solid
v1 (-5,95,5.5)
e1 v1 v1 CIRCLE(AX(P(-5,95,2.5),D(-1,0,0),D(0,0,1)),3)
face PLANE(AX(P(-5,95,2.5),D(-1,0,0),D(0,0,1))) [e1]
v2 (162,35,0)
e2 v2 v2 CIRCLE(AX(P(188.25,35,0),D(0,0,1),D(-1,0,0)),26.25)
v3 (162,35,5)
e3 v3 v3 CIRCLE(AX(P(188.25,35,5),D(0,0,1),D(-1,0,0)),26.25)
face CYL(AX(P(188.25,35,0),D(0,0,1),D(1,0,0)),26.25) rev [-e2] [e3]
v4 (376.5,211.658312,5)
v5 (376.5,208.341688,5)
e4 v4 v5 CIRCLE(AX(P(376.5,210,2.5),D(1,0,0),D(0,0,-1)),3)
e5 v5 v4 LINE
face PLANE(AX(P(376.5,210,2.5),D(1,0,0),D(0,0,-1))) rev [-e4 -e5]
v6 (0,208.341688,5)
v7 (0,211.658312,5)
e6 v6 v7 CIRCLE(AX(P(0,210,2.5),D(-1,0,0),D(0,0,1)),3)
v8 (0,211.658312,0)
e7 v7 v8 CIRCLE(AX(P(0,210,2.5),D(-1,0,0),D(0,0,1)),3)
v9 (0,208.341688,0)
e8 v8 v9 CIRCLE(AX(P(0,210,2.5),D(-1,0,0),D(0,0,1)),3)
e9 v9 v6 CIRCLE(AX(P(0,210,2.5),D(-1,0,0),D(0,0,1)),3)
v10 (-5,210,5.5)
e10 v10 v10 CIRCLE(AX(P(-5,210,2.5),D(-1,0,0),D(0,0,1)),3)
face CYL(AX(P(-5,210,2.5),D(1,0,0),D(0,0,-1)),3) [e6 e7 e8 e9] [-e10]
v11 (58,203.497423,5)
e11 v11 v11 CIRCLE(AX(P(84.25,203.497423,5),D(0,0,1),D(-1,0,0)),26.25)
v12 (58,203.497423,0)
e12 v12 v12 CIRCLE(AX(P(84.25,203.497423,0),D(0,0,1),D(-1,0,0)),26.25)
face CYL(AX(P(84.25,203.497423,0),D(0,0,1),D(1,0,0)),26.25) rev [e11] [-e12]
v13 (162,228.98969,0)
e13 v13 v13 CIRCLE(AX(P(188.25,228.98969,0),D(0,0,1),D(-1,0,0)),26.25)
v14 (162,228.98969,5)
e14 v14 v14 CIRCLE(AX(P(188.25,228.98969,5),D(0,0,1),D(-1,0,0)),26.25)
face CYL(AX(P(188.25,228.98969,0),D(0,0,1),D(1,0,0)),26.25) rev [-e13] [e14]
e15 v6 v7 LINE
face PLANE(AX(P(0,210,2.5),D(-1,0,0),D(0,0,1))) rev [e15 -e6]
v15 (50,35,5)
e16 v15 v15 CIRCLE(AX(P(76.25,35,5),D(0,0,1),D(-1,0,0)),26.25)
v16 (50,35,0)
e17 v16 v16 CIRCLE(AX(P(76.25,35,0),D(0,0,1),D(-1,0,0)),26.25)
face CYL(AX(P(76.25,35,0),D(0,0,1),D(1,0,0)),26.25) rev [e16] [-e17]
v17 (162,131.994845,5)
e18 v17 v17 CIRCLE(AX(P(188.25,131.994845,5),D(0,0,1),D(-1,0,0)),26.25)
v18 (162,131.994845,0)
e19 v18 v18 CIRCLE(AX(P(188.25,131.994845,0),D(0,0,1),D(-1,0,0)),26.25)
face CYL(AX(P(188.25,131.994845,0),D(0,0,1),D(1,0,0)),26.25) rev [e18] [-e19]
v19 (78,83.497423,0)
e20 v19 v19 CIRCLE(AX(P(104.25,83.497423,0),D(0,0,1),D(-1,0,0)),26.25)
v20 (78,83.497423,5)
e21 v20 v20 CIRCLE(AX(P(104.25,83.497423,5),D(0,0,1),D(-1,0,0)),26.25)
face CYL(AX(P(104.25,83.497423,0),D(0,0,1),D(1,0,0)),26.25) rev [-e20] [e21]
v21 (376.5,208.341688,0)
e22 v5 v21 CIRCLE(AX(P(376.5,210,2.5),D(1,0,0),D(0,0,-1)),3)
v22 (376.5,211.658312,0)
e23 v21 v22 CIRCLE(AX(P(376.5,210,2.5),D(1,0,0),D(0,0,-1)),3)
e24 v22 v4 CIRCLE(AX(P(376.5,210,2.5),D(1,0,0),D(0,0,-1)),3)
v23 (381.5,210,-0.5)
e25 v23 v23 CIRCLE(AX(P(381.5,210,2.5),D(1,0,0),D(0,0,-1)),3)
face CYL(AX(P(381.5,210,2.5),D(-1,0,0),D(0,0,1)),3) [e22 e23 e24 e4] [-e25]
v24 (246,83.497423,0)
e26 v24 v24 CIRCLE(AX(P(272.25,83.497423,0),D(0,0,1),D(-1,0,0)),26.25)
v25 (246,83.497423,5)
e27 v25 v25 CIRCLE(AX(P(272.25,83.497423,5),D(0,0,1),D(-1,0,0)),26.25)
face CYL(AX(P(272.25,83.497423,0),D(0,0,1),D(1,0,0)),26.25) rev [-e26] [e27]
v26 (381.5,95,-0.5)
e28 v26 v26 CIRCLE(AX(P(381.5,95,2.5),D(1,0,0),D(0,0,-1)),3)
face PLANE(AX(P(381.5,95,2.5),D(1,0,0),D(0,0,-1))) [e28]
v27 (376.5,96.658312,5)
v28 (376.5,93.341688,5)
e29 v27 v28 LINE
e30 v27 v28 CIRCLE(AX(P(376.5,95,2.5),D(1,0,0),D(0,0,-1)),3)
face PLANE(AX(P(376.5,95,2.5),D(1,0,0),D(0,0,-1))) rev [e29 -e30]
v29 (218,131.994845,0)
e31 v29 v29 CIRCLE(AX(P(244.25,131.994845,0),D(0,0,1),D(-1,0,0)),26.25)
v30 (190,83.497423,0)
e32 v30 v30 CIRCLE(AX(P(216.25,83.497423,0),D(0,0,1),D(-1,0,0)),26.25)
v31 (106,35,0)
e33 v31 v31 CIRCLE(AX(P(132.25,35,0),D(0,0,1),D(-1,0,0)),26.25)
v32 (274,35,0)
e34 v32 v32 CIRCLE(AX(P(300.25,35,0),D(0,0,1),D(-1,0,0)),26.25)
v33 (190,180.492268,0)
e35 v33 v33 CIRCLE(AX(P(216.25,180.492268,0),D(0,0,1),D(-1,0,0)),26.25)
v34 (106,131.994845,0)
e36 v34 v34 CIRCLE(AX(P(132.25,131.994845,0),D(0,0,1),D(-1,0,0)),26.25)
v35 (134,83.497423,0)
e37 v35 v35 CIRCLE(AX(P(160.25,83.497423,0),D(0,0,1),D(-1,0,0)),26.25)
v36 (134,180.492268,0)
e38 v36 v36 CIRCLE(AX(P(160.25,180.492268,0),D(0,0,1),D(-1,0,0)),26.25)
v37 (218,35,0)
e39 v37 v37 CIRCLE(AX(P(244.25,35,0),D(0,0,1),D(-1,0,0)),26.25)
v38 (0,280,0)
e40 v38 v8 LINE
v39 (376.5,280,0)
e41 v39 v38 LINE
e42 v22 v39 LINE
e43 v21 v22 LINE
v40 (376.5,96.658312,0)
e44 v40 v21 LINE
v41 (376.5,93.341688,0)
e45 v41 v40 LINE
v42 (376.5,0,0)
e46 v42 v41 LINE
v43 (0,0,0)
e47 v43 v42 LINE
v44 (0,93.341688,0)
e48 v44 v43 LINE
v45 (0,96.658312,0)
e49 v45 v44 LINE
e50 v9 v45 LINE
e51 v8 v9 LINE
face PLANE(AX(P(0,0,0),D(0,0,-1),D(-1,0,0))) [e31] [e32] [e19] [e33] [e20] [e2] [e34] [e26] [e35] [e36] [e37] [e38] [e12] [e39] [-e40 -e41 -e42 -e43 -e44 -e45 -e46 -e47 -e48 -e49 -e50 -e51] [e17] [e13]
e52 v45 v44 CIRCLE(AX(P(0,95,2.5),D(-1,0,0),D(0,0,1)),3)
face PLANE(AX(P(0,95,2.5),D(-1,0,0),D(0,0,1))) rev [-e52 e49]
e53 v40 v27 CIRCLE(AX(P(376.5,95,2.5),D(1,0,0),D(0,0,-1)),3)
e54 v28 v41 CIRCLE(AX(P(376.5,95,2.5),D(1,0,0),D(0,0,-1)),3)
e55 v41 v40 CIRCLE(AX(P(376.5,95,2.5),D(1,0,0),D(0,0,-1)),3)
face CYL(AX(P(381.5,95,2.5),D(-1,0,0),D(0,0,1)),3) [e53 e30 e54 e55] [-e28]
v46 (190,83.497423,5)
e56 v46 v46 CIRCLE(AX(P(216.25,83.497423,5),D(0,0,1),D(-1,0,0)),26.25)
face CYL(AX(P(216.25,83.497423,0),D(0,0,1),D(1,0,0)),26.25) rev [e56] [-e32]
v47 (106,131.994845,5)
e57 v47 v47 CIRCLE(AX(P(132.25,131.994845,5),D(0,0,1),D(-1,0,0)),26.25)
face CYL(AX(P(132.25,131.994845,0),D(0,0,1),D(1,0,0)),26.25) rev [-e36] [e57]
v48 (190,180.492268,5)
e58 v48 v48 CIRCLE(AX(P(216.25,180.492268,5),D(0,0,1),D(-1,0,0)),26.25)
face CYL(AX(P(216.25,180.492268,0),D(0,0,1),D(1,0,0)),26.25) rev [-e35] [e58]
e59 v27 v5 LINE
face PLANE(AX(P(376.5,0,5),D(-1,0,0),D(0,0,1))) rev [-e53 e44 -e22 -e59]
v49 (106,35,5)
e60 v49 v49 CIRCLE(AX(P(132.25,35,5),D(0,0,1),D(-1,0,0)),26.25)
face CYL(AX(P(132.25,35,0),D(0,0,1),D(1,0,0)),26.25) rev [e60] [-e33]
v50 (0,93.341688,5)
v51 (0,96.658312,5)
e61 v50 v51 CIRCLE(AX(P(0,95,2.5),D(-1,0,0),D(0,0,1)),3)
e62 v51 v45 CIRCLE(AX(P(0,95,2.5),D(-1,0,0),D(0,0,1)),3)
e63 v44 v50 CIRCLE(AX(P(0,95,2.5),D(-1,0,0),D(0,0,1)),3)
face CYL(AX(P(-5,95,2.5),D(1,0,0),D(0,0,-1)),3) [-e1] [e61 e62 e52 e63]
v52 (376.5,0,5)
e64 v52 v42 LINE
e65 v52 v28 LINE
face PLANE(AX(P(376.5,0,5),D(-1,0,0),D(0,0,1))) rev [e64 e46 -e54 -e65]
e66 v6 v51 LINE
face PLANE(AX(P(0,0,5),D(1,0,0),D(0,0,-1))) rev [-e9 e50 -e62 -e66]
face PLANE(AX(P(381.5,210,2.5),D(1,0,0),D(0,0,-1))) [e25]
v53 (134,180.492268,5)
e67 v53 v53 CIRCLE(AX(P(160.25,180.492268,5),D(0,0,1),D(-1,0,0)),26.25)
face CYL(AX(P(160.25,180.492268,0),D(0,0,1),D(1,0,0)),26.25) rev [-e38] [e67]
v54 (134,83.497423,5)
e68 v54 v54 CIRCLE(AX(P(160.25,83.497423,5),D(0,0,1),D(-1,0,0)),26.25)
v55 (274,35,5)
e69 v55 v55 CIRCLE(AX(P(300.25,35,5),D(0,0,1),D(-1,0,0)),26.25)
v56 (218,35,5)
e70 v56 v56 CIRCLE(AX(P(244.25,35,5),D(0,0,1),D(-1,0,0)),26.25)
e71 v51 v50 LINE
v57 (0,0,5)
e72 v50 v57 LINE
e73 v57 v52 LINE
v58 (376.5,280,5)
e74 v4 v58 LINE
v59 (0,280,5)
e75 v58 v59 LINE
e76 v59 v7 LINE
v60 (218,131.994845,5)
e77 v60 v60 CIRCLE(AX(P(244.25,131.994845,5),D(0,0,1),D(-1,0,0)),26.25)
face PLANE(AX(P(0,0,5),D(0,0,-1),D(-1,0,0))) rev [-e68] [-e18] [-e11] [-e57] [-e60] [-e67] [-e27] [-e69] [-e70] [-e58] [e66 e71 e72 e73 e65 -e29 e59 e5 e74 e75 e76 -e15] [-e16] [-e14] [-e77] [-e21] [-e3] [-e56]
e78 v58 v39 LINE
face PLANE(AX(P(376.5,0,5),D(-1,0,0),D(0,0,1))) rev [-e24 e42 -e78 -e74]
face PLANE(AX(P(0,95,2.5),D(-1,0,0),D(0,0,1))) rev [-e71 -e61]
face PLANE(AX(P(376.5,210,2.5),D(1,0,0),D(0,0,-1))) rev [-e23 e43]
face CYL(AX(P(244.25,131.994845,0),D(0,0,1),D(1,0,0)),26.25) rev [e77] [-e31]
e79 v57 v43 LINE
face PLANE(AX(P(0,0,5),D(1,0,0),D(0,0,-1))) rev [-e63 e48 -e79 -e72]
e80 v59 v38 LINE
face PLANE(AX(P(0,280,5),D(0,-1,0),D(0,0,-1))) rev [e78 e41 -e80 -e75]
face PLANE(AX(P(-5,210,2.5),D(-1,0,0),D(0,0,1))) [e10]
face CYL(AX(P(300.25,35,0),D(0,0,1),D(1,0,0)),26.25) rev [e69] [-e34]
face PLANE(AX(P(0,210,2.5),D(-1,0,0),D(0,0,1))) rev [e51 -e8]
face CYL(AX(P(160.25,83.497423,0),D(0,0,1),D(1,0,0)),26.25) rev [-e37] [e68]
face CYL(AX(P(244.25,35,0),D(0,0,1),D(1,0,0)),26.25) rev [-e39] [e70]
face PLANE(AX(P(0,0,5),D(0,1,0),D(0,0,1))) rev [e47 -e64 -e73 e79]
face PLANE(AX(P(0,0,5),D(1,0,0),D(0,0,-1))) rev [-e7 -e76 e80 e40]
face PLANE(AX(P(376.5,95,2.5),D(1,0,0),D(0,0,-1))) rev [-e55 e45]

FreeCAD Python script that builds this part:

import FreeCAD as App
import Part
import Sketcher
from FreeCAD import Vector


def add_polygon(sketch, points):
    """Adds a closed chain of lines whose ends are joined by coincident constraints."""
    first, n = sketch.GeometryCount, len(points)
    for a, b in zip(points, points[1:] + points[:1]):
        sketch.addGeometry(Part.LineSegment(App.Vector(*a, 0), App.Vector(*b, 0)), False)
    for i in range(n):
        sketch.addConstraint(Sketcher.Constraint("Coincident", first + i, 2, first + (i + 1) % n, 1))

doc = App.newDocument("Part")
body = doc.addObject("PartDesign::Body", "Body")

sketch1 = body.newObject("Sketcher::SketchObject", "Sketch")
sketch1.AttachmentSupport = (doc.getObject("XY_Plane"), [""])
sketch1.MapMode = "FlatFace"
add_polygon(sketch1, [(0, 280), (0, 0), (376.5, 0), (376.5, 280)])
sketch1.addConstraint([
    Sketcher.Constraint("Vertical", 0),
    Sketcher.Constraint("Horizontal", 1),
    Sketcher.Constraint("Vertical", 2),
    Sketcher.Constraint("Horizontal", 3),
    Sketcher.Constraint("Coincident", 0, 2, -1, 1),
    Sketcher.Constraint("DistanceY", 0, 2, 0, 1, 280.0),
    Sketcher.Constraint("DistanceX", 1, 1, 1, 2, 376.5),
])
pad1 = body.newObject("PartDesign::Pad", "Pad")
pad1.Profile = sketch1
pad1.Length = 5

sketch2 = body.newObject("Sketcher::SketchObject", "Sketch001")
sketch2.AttachmentSupport = (doc.getObject("XY_Plane"), [""])
sketch2.MapMode = "FlatFace"
sketch2.AttachmentOffset = App.Placement(Vector(0, 0, 5), App.Rotation())
sketch2.addGeometry([
    Part.Circle(Vector(84.25, 203.497423, 0), Vector(0, 0, 1), 26.25),
    Part.Circle(Vector(188.25, 228.98969, 0), Vector(0, 0, 1), 26.25),
    Part.Circle(Vector(160.25, 180.492268, 0), Vector(0, 0, 1), 26.25),
    Part.Circle(Vector(216.25, 180.492268, 0), Vector(0, 0, 1), 26.25),
    Part.Circle(Vector(244.25, 131.994845, 0), Vector(0, 0, 1), 26.25),
    Part.Circle(Vector(132.25, 131.994845, 0), Vector(0, 0, 1), 26.25),
    Part.Circle(Vector(188.25, 131.994845, 0), Vector(0, 0, 1), 26.25),
    Part.Circle(Vector(272.25, 83.497423, 0), Vector(0, 0, 1), 26.25),
    Part.Circle(Vector(216.25, 83.497423, 0), Vector(0, 0, 1), 26.25),
    Part.Circle(Vector(104.25, 83.497423, 0), Vector(0, 0, 1), 26.25),
    Part.Circle(Vector(160.25, 83.497423, 0), Vector(0, 0, 1), 26.25),
    Part.Circle(Vector(300.25, 35, 0), Vector(0, 0, 1), 26.25),
    Part.Circle(Vector(244.25, 35, 0), Vector(0, 0, 1), 26.25),
    Part.Circle(Vector(188.25, 35, 0), Vector(0, 0, 1), 26.25),
    Part.Circle(Vector(132.25, 35, 0), Vector(0, 0, 1), 26.25),
    Part.Circle(Vector(76.25, 35, 0), Vector(0, 0, 1), 26.25),
], False)
sketch2.addConstraint([
    Sketcher.Constraint("Equal", 0, 1),
    Sketcher.Constraint("Equal", 1, 2),
    Sketcher.Constraint("Equal", 2, 3),
    Sketcher.Constraint("Equal", 3, 4),
    Sketcher.Constraint("Equal", 4, 5),
    Sketcher.Constraint("Equal", 5, 6),
    Sketcher.Constraint("Equal", 6, 7),
    Sketcher.Constraint("Equal", 7, 8),
    Sketcher.Constraint("Equal", 8, 9),
    Sketcher.Constraint("Equal", 9, 10),
    Sketcher.Constraint("Equal", 10, 11),
    Sketcher.Constraint("Equal", 11, 12),
    Sketcher.Constraint("Equal", 12, 13),
    Sketcher.Constraint("Equal", 13, 14),
    Sketcher.Constraint("Equal", 14, 15),
    Sketcher.Constraint("Horizontal", 2, 3, 3, 3),
    Sketcher.Constraint("Horizontal", 4, 3, 5, 3),
    Sketcher.Constraint("Horizontal", 5, 3, 6, 3),
    Sketcher.Constraint("Horizontal", 7, 3, 8, 3),
    Sketcher.Constraint("Horizontal", 8, 3, 9, 3),
    Sketcher.Constraint("Horizontal", 9, 3, 10, 3),
    Sketcher.Constraint("Horizontal", 11, 3, 12, 3),
    Sketcher.Constraint("Horizontal", 12, 3, 13, 3),
    Sketcher.Constraint("Horizontal", 13, 3, 14, 3),
    Sketcher.Constraint("Horizontal", 14, 3, 15, 3),
    Sketcher.Constraint("Vertical", 1, 3, 6, 3),
    Sketcher.Constraint("Vertical", 3, 3, 8, 3),
    Sketcher.Constraint("Vertical", 2, 3, 10, 3),
    Sketcher.Constraint("Vertical", 4, 3, 12, 3),
    Sketcher.Constraint("Vertical", 6, 3, 13, 3),
    Sketcher.Constraint("Vertical", 5, 3, 14, 3),
    Sketcher.Constraint("Diameter", 0, 52.5),
    Sketcher.Constraint("DistanceY", -1, 1, 11, 3, 35.0),
    Sketcher.Constraint("DistanceX", 0, 3, 1, 3, 104.0),
    Sketcher.Constraint("DistanceX", 2, 3, 1, 3, 28.0),
    Sketcher.Constraint("DistanceX", 2, 3, 3, 3, 56.0),
    Sketcher.Constraint("DistanceX", 3, 3, 4, 3, 28.0),
    Sketcher.Constraint("DistanceX", 5, 3, 2, 3, 28.0),
    Sketcher.Constraint("DistanceX", 4, 3, 7, 3, 28.0),
    Sketcher.Constraint("DistanceX", 9, 3, 5, 3, 28.0),
    Sketcher.Constraint("DistanceY", 9, 3, 0, 3, 120.0),
    Sketcher.Constraint("DistanceX", 7, 3, 11, 3, 28.0),
    Sketcher.Constraint("DistanceX", 15, 3, 14, 3, 56.0),
    Sketcher.Constraint("DistanceX", -1, 1, 0, 3, 84.25),
    Sketcher.Constraint("DistanceY", -1, 1, 1, 3, 228.98969),
    Sketcher.Constraint("DistanceY", -1, 1, 0, 3, 203.497423),
    Sketcher.Constraint("DistanceY", -1, 1, 2, 3, 180.492268),
    Sketcher.Constraint("DistanceY", -1, 1, 4, 3, 131.994845),
])
pocket1 = body.newObject("PartDesign::Pocket", "Pocket")
pocket1.Profile = sketch2
pocket1.Length = 5

sketch3 = body.newObject("Sketcher::SketchObject", "Sketch002")
sketch3.AttachmentSupport = (doc.getObject("YZ_Plane"), [""])
sketch3.MapMode = "FlatFace"
sketch3.addGeometry([
    Part.Circle(Vector(210, 2.5, 0), Vector(0, 0, 1), 3),
    Part.Circle(Vector(95, 2.5, 0), Vector(0, 0, 1), 3),
], False)
sketch3.addConstraint([
    Sketcher.Constraint("Equal", 0, 1),
    Sketcher.Constraint("Horizontal", 0, 3, 1, 3),
    Sketcher.Constraint("Diameter", 0, 6.0),
    Sketcher.Constraint("DistanceX", -1, 1, 0, 3, 210.0),
    Sketcher.Constraint("DistanceX", -1, 1, 1, 3, 95.0),
    Sketcher.Constraint("DistanceY", -1, 1, 0, 3, 2.5),
])
pad2 = body.newObject("PartDesign::Pad", "Pad001")
pad2.Profile = sketch3
pad2.Length = 5
pad2.Reversed = True

sketch4 = body.newObject("Sketcher::SketchObject", "Sketch003")
sketch4.AttachmentSupport = (doc.getObject("YZ_Plane"), [""])
sketch4.MapMode = "FlatFace"
sketch4.AttachmentOffset = App.Placement(Vector(0, 0, 381.5), App.Rotation())
sketch4.addGeometry([
    Part.Circle(Vector(210, 2.5, 0), Vector(0, 0, 1), 3),
    Part.Circle(Vector(95, 2.5, 0), Vector(0, 0, 1), 3),
], False)
sketch4.addConstraint([
    Sketcher.Constraint("Equal", 0, 1),
    Sketcher.Constraint("Horizontal", 0, 3, 1, 3),
    Sketcher.Constraint("Diameter", 0, 6.0),
    Sketcher.Constraint("DistanceX", -1, 1, 0, 3, 210.0),
    Sketcher.Constraint("DistanceX", -1, 1, 1, 3, 95.0),
    Sketcher.Constraint("DistanceY", -1, 1, 0, 3, 2.5),
])
pad3 = body.newObject("PartDesign::Pad", "Pad002")
pad3.Profile = sketch4
pad3.Length = 5
pad3.Reversed = True

doc.recompute()
